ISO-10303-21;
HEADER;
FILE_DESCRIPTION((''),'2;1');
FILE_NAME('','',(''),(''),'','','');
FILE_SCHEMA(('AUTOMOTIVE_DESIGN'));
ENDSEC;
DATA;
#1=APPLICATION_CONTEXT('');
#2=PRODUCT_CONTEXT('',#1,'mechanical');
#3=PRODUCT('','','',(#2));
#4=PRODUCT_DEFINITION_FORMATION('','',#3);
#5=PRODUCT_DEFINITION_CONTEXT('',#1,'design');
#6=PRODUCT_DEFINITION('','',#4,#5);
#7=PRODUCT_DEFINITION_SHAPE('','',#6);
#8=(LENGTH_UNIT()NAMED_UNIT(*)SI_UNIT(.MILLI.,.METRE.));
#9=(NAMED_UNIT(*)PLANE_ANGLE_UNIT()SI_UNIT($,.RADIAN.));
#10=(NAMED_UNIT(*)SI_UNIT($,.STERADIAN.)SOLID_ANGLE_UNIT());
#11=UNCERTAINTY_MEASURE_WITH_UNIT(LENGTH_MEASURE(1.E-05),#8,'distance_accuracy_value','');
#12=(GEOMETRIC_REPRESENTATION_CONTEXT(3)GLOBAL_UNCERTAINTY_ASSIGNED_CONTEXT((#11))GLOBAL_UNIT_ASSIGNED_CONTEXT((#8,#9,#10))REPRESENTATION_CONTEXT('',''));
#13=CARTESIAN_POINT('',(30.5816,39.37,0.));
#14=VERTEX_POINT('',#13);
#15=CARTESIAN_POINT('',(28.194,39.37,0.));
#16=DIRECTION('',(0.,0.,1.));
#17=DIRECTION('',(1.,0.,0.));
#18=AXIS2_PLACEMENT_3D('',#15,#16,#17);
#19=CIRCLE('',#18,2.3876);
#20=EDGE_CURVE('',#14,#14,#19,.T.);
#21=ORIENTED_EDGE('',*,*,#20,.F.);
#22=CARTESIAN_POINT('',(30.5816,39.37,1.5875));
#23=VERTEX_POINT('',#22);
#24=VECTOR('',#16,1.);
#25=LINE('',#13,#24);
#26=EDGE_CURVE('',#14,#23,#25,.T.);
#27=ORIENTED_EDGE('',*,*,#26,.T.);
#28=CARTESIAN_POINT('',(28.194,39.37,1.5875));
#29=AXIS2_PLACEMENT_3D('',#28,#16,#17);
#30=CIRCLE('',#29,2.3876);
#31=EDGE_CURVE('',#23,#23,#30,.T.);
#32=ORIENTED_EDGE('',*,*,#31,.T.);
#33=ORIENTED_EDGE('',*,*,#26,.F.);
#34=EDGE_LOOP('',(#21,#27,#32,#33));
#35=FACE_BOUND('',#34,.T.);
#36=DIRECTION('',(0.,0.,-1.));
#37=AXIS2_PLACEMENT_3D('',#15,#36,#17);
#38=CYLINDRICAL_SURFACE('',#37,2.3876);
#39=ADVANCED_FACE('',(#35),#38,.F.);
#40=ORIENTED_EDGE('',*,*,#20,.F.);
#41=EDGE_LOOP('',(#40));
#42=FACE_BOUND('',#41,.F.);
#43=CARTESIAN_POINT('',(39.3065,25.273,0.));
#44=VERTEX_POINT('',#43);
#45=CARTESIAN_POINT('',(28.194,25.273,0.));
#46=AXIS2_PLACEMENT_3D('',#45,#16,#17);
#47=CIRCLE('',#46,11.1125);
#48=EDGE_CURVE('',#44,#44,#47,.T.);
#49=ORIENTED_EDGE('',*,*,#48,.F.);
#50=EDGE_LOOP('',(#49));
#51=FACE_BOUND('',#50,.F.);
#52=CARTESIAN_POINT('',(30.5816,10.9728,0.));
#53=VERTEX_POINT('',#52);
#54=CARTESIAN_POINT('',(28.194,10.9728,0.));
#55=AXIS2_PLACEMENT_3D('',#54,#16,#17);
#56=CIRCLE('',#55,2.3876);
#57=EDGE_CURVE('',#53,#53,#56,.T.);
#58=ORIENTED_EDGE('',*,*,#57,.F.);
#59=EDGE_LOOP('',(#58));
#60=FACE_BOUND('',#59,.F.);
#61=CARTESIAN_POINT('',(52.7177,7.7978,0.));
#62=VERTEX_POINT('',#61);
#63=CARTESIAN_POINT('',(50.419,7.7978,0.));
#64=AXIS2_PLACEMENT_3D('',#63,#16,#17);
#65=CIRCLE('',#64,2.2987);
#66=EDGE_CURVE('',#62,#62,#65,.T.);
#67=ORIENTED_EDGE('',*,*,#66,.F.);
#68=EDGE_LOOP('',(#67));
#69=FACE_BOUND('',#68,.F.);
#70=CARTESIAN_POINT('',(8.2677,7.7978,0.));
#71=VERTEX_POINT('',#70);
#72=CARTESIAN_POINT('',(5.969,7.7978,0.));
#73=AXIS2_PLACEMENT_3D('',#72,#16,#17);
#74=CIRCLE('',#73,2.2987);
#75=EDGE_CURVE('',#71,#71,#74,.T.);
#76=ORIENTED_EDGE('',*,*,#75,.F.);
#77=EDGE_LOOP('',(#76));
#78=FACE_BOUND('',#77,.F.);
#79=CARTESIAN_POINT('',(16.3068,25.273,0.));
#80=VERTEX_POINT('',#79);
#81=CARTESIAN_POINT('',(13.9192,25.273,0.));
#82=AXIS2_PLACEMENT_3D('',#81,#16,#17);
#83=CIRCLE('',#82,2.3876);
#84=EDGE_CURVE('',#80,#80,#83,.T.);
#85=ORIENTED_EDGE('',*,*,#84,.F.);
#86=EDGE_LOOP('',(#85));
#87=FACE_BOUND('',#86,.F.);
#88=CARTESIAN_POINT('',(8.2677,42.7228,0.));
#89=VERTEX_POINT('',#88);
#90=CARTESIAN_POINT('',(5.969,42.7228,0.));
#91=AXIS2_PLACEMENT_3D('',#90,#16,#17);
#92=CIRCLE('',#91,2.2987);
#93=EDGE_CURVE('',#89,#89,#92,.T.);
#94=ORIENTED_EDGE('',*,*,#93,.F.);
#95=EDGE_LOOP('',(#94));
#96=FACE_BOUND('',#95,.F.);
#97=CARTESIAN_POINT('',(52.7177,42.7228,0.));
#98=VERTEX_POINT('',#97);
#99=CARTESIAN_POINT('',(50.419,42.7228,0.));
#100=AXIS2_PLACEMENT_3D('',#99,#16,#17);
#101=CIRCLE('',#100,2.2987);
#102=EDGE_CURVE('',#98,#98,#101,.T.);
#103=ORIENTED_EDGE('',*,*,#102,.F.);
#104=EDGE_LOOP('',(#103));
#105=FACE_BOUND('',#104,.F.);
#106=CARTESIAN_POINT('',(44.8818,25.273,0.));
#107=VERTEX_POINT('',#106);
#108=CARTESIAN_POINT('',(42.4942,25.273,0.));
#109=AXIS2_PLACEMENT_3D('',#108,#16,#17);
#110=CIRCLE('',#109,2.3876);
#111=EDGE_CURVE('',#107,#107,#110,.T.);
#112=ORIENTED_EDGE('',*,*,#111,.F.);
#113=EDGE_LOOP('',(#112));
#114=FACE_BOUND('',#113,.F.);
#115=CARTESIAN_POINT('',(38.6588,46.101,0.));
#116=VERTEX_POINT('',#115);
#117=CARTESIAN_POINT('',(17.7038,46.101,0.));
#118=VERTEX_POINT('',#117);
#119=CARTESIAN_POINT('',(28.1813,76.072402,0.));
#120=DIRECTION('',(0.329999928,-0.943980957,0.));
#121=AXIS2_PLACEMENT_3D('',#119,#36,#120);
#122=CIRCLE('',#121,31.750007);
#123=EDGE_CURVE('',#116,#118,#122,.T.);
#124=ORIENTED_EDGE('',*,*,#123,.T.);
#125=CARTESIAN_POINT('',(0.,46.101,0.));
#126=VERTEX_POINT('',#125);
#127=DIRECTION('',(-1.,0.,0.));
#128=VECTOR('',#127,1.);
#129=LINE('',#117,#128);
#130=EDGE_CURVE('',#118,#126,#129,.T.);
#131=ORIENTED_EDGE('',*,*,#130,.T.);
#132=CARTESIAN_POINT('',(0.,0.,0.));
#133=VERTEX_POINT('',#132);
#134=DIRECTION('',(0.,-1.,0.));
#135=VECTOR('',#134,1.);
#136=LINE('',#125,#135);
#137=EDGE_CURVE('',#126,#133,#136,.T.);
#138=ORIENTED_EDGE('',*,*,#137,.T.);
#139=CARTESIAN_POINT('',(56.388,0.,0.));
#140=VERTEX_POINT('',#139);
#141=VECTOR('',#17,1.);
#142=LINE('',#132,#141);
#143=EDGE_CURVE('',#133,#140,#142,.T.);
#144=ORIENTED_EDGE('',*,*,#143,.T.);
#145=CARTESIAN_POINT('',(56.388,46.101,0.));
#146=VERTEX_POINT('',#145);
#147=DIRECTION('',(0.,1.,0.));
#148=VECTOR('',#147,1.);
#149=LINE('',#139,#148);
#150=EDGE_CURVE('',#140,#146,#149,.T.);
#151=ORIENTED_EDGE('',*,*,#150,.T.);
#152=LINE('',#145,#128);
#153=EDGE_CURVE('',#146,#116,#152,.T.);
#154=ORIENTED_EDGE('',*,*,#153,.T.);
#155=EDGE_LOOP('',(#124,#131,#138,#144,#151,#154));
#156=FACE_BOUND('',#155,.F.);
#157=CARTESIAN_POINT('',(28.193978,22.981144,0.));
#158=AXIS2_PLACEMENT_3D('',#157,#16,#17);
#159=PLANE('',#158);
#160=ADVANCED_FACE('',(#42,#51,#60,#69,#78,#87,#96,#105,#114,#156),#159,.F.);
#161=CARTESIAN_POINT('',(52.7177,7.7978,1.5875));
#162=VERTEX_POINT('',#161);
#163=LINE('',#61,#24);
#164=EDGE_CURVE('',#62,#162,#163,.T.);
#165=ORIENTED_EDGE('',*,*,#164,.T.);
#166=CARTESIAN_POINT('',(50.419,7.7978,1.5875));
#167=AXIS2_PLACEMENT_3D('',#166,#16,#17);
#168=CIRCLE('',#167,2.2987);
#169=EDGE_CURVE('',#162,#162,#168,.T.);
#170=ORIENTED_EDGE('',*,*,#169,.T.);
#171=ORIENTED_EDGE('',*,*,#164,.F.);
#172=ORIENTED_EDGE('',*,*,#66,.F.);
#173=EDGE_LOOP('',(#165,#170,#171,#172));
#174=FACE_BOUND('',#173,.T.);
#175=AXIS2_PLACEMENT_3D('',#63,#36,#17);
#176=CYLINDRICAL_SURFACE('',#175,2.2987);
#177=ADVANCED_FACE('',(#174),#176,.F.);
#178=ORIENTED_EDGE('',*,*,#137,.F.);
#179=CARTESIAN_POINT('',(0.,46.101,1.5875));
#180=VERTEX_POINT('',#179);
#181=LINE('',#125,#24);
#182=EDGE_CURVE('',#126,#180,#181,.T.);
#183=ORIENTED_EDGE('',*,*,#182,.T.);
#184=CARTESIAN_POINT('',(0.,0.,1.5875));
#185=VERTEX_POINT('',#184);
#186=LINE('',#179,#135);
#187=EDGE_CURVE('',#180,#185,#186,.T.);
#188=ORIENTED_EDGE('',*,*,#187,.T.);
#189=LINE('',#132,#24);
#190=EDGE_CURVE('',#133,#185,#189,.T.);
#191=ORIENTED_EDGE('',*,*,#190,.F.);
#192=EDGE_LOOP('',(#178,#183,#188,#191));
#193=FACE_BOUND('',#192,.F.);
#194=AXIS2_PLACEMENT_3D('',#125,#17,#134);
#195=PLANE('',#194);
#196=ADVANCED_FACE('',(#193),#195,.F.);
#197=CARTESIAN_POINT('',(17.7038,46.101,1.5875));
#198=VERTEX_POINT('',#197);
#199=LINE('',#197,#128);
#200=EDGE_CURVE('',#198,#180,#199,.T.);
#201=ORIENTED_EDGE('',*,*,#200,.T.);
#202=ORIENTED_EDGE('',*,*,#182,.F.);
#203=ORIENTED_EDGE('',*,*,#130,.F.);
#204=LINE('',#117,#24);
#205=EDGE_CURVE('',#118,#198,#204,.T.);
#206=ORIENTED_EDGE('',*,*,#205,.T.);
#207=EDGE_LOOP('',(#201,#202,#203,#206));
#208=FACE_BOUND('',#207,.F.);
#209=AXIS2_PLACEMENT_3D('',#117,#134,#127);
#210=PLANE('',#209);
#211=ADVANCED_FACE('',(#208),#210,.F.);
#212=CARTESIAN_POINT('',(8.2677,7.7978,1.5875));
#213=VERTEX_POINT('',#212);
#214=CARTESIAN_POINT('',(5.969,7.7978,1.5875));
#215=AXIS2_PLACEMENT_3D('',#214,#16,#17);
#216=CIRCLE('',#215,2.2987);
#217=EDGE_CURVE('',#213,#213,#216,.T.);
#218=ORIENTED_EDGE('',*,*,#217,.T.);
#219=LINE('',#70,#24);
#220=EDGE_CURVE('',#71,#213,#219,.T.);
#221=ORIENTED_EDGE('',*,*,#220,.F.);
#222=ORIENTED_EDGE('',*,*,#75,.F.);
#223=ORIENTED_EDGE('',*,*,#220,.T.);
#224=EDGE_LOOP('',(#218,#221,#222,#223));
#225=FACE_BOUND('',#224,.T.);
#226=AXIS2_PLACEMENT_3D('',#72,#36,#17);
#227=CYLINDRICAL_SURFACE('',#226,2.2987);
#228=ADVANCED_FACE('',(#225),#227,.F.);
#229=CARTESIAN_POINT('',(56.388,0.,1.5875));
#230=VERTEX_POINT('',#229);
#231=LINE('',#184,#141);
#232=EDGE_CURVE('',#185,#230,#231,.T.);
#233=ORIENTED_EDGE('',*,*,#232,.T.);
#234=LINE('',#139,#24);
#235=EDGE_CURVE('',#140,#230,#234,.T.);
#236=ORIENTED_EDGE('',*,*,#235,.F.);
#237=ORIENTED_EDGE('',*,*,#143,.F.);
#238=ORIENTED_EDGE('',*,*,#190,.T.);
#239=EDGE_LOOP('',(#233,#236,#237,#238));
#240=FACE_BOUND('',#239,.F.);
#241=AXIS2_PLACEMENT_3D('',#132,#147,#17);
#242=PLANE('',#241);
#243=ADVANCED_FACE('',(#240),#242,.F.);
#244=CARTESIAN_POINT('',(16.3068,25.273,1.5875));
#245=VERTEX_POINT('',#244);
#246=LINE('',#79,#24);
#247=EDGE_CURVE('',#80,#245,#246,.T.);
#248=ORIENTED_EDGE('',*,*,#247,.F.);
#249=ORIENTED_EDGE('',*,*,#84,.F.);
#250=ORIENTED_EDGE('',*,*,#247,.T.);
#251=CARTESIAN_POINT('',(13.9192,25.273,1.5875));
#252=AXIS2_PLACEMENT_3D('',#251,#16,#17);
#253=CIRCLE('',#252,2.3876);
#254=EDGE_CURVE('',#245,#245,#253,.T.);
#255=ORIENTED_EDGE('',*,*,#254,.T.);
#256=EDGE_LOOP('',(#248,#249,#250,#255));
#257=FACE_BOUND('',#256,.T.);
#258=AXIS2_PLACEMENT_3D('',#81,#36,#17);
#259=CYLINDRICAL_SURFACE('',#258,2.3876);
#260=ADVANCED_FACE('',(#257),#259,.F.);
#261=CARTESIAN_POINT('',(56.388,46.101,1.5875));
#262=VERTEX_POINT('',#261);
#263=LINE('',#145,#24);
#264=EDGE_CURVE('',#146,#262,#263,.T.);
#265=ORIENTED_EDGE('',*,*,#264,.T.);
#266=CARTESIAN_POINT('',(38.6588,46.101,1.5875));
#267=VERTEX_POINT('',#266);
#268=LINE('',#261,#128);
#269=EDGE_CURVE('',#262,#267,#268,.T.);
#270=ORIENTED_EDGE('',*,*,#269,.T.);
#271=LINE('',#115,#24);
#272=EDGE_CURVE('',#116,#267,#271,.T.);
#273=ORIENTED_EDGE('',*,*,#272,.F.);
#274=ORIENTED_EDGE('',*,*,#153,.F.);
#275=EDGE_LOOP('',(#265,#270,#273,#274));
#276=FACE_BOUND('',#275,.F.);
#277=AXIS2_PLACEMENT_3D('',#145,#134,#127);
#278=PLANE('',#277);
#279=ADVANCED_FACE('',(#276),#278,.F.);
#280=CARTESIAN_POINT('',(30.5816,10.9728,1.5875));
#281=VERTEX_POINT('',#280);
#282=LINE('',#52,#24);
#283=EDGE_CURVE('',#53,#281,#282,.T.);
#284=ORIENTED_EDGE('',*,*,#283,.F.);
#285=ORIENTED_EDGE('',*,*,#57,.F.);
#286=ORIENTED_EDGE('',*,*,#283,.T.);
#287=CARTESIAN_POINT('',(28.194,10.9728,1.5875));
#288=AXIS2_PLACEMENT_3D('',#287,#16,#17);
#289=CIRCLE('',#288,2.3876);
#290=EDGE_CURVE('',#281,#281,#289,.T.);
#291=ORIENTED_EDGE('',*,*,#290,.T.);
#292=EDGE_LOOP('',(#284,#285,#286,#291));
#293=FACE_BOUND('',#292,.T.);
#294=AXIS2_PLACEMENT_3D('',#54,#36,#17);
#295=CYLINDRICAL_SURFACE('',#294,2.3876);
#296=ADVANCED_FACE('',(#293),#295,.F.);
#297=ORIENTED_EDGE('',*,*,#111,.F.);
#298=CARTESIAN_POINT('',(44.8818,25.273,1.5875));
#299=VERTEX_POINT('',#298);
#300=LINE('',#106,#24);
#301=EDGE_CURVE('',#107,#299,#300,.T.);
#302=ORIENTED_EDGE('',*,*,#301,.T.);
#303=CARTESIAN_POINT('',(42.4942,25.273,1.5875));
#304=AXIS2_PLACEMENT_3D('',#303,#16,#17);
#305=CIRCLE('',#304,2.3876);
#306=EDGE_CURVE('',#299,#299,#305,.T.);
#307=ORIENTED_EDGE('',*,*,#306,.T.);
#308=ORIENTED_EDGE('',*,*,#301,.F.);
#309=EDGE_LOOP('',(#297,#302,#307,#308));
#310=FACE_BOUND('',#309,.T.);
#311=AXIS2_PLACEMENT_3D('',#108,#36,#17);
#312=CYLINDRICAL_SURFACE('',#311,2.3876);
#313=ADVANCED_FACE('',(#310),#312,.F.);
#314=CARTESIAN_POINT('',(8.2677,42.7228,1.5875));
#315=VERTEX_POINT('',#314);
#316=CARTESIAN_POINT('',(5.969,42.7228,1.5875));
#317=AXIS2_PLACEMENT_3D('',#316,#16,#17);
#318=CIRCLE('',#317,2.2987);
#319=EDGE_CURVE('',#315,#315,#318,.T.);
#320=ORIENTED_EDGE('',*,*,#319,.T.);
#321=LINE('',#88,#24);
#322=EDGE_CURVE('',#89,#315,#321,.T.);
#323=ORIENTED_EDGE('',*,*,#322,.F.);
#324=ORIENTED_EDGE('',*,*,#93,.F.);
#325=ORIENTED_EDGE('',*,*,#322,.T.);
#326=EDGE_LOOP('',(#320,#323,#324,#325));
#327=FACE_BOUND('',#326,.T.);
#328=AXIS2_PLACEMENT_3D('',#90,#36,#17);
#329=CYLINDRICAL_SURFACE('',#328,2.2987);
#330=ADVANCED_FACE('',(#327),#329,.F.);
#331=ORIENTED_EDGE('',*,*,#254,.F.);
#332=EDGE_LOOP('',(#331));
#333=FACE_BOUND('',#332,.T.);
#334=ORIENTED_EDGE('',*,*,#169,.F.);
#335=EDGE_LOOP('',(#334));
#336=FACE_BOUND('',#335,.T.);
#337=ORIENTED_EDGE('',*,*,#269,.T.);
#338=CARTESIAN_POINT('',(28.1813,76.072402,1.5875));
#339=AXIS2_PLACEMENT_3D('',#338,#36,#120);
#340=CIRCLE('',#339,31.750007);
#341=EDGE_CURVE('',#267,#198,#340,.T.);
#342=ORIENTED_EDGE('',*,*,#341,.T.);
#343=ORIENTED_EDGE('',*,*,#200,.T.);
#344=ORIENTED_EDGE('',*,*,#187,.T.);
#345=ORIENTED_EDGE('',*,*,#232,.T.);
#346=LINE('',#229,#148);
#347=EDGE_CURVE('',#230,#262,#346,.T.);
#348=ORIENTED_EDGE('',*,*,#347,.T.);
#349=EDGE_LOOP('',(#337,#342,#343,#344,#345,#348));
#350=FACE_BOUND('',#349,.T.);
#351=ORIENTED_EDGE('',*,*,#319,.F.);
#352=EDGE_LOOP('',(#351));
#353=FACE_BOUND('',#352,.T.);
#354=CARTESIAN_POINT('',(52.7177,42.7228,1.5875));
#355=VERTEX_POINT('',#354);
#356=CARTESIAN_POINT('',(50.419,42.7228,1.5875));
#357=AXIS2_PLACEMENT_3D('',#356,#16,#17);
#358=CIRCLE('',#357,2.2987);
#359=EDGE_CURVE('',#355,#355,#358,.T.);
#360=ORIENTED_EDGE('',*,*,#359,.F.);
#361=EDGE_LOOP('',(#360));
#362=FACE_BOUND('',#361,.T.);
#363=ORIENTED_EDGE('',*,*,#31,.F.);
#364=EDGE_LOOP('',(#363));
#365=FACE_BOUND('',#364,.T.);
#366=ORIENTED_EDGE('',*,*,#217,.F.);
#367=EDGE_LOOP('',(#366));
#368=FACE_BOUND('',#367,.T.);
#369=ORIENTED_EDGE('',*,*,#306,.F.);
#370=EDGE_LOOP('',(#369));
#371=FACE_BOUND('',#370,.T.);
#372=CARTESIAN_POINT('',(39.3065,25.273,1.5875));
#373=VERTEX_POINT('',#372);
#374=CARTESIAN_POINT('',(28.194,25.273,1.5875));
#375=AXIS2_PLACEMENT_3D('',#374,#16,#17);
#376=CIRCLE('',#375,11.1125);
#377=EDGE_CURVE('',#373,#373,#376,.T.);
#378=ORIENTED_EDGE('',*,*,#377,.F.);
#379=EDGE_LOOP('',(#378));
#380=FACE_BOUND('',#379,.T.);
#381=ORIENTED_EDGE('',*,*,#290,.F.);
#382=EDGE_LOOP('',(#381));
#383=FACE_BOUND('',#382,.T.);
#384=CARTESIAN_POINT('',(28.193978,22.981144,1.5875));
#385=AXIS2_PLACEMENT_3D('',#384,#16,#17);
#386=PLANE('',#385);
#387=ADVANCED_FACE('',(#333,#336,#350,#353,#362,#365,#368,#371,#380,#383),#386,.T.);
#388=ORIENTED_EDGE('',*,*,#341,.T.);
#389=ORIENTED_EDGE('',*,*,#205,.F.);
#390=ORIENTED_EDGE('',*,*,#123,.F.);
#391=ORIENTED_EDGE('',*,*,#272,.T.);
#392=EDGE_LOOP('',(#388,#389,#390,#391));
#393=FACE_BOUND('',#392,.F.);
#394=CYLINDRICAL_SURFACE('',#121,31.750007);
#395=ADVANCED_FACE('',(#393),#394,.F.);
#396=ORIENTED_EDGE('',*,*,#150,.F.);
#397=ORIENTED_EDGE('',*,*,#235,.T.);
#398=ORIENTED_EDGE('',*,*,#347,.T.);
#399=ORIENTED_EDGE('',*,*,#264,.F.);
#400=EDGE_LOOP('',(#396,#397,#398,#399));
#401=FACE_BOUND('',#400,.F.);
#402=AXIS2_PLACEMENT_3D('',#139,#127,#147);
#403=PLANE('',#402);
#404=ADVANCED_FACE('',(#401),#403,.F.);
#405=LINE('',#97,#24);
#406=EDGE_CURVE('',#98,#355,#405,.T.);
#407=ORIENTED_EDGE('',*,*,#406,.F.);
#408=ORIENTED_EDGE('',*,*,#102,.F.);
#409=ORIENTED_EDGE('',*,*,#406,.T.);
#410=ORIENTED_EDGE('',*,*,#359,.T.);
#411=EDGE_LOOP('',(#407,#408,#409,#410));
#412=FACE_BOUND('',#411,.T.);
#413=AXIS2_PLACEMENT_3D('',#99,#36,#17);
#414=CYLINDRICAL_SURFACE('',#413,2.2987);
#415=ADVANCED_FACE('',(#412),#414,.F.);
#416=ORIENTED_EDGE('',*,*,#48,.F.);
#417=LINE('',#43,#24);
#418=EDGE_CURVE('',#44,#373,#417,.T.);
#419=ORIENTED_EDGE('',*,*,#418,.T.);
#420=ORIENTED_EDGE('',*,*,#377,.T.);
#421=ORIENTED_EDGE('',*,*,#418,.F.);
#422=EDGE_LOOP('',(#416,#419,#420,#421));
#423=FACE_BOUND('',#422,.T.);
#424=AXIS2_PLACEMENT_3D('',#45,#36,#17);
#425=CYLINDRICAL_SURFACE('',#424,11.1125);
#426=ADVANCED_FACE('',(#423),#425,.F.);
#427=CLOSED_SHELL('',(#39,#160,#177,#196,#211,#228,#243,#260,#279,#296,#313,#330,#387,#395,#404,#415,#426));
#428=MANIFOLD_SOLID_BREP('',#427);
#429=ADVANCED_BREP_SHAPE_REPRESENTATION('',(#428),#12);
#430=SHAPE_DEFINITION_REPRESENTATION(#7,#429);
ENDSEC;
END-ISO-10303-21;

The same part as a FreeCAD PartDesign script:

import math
import FreeCAD as App
import Part
import Sketcher

V = App.Vector
Q = App.Units.Quantity

doc = App.newDocument("Part")
body = doc.addObject("PartDesign::Body", "Body")

sketch1 = body.newObject("Sketcher::SketchObject", "Sketch")
sketch1.AttachmentSupport = (doc.getObject("XY_Plane"), [""])
sketch1.MapMode = "FlatFace"
sketch1.addGeometry([
    Part.LineSegment(V(0, 46.1, 0), V(0, 0, 0)),
    Part.LineSegment(V(0, 0, 0), V(56.4, 0, 0)),
    Part.LineSegment(V(56.4, 0, 0), V(56.4, 46.1, 0)),
    Part.LineSegment(V(56.4, 46.1, 0), V(38.7, 46.1, 0)),
    Part.ArcOfCircle(Part.Circle(V(28.2, 76.1, 0), V(0, 0, 1), 31.8), math.radians(-109), math.radians(-71)),
    Part.LineSegment(V(17.7, 46.1, 0), V(0, 46.1, 0)),
    Part.Circle(V(6, 7.8, 0), V(0, 0, 1), 2.3),
    Part.Circle(V(28.2, 11, 0), V(0, 0, 1), 2.4),
    Part.Circle(V(50.4, 7.8, 0), V(0, 0, 1), 2.3),
    Part.Circle(V(13.9, 25.3, 0), V(0, 0, 1), 2.4),
    Part.Circle(V(6, 42.7, 0), V(0, 0, 1), 2.3),
    Part.Circle(V(28.2, 25.3, 0), V(0, 0, 1), 11.1),
    Part.Circle(V(42.5, 25.3, 0), V(0, 0, 1), 2.4),
    Part.Circle(V(28.2, 39.4, 0), V(0, 0, 1), 2.4),
    Part.Circle(V(50.4, 42.7, 0), V(0, 0, 1), 2.3),
], False)
sketch1.addConstraint([
    Sketcher.Constraint("Coincident", 0, 2, 1, 1),
    Sketcher.Constraint("Coincident", 1, 2, 2, 1),
    Sketcher.Constraint("Coincident", 2, 2, 3, 1),
    Sketcher.Constraint("Coincident", 3, 2, 4, 2),
    Sketcher.Constraint("Coincident", 4, 1, 5, 1),
    Sketcher.Constraint("Coincident", 5, 2, 0, 1),
    Sketcher.Constraint("Vertical", 0),
    Sketcher.Constraint("Horizontal", 1),
    Sketcher.Constraint("Vertical", 2),
    Sketcher.Constraint("Horizontal", 3),
    Sketcher.Constraint("Horizontal", 5),
    Sketcher.Constraint("Coincident", 0, 2, -1, 1),
    Sketcher.Constraint("Equal", 6, 8),
    Sketcher.Constraint("Equal", 7, 9),
    Sketcher.Constraint("Equal", 8, 10),
    Sketcher.Constraint("Equal", 9, 12),
    Sketcher.Constraint("Equal", 12, 13),
    Sketcher.Constraint("Equal", 10, 14),
    Sketcher.Constraint("Horizontal", 6, 3, 8, 3),
    Sketcher.Constraint("Horizontal", 9, 3, 11, 3),
    Sketcher.Constraint("Horizontal", 11, 3, 12, 3),
    Sketcher.Constraint("Horizontal", 10, 3, 14, 3),
    Sketcher.Constraint("Horizontal", 3, 2, 4, 1),
    Sketcher.Constraint("Vertical", 6, 3, 10, 3),
    Sketcher.Constraint("Vertical", 7, 3, 11, 3),
    Sketcher.Constraint("Vertical", 11, 3, 13, 3),
    Sketcher.Constraint("Vertical", 8, 3, 14, 3),
    Sketcher.Constraint("Diameter", 6, Q("0.181 in")),
    Sketcher.Constraint("Diameter", 7, Q("0.188 in")),
    Sketcher.Constraint("Diameter", 11, Q("0.875 in")),
    Sketcher.Constraint("DistanceX", 1, 1, 1, 2, Q("2.22 in")),
    Sketcher.Constraint("DistanceX", 3, 2, 3, 1, Q("0.698 in")),
    Sketcher.Constraint("DistanceX", 5, 2, 5, 1, Q("0.697 in")),
    Sketcher.Constraint("DistanceY", 0, 2, 0, 1, Q("1.815 in")),
    Sketcher.Constraint("DistanceX", -1, 1, 7, 3, Q("1.11 in")),
    Sketcher.Constraint("DistanceY", -1, 1, 13, 3, Q("1.55 in")),
    Sketcher.Constraint("DistanceX", 6, 3, 8, 3, Q("1.75 in")),
    Sketcher.Constraint("DistanceY", 7, 3, 10, 3, Q("1.25 in")),
    Sketcher.Constraint("DistanceY", 12, 3, 2, 2, Q("0.82 in")),
    Sketcher.Constraint("DistanceX", -1, 1, 6, 3, Q("0.235 in")),
    Sketcher.Constraint("DistanceY", -1, 1, 6, 3, Q("0.307 in")),
    Sketcher.Constraint("DistanceY", -1, 1, 7, 3, Q("0.432 in")),
    Sketcher.Constraint("DistanceX", -1, 1, 9, 3, Q("0.548 in")),
    Sketcher.Constraint("DistanceX", -1, 1, 12, 3, Q("1.673 in")),
    Sketcher.Constraint("Radius", 4, 31.750007),
])
pad1 = body.newObject("PartDesign::Pad", "Pad")
pad1.Profile = sketch1
pad1.Length = Q("0.0625 in")

doc.recompute()
